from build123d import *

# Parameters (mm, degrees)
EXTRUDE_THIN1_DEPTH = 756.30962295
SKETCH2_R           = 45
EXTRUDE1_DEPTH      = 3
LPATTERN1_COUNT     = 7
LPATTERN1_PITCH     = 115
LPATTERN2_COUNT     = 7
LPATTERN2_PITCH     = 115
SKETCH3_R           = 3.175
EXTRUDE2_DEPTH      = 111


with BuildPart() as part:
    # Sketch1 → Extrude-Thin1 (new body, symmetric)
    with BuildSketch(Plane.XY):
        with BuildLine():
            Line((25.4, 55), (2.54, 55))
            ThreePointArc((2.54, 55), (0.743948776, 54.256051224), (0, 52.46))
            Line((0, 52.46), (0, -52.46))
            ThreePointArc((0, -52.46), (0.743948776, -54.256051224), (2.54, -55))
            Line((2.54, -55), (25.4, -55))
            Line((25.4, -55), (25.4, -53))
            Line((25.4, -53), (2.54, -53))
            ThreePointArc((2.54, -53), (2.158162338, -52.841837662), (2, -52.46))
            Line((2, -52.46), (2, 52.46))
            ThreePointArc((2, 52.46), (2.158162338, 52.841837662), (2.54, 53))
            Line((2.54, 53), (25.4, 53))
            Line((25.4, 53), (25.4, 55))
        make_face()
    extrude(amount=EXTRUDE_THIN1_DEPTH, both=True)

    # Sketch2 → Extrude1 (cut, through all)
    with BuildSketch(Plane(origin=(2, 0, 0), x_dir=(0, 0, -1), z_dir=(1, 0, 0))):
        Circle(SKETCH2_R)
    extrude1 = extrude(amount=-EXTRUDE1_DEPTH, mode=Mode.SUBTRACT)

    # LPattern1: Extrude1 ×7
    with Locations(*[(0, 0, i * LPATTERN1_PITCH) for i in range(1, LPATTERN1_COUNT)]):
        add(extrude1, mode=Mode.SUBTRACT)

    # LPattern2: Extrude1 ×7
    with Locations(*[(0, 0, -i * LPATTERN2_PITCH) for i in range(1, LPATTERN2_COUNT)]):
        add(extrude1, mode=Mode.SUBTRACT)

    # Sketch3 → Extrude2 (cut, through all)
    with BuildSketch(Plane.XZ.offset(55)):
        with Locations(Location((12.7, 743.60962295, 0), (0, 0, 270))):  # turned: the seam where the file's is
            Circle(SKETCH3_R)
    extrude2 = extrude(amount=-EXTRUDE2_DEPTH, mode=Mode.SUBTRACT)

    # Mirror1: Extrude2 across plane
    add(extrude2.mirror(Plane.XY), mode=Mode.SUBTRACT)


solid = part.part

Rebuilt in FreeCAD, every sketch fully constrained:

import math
import FreeCAD as App
import Part
import Sketcher

V = App.Vector
Q = App.Units.Quantity

doc = App.newDocument("Part")
body = doc.addObject("PartDesign::Body", "Body")

# Sketch on XY plane
sketch1 = body.newObject("Sketcher::SketchObject", "Sketch")
sketch1.AttachmentSupport = (doc.getObject("XY_Plane"), [""])
sketch1.MapMode = "FlatFace"
sketch1.addGeometry(Part.LineSegment(V(25.4, 55, 0), V(2.54, 55, 0)), False)
sketch1.addGeometry(Part.ArcOfCircle(Part.Circle(V(2.54, 52.46, 0), V(0, 0, 1), 2.54), math.radians(90), math.radians(180)), False)
sketch1.addGeometry(Part.LineSegment(V(0, 52.46, 0), V(0, -52.46, 0)), False)
sketch1.addGeometry(Part.ArcOfCircle(Part.Circle(V(2.54, -52.46, 0), V(0, 0, 1), 2.54), math.radians(-180), math.radians(-90)), False)
sketch1.addGeometry(Part.LineSegment(V(2.54, -55, 0), V(25.4, -55, 0)), False)
sketch1.addGeometry(Part.LineSegment(V(25.4, -55, 0), V(25.4, -53, 0)), False)
sketch1.addGeometry(Part.LineSegment(V(25.4, -53, 0), V(2.54, -53, 0)), False)
sketch1.addGeometry(Part.ArcOfCircle(Part.Circle(V(2.54, -52.46, 0), V(0, 0, 1), 0.54), math.radians(180), math.radians(270)), False)
sketch1.addGeometry(Part.LineSegment(V(2, -52.46, 0), V(2, 52.46, 0)), False)
sketch1.addGeometry(Part.ArcOfCircle(Part.Circle(V(2.54, 52.46, 0), V(0, 0, 1), 0.54), math.radians(90), math.radians(180)), False)
sketch1.addGeometry(Part.LineSegment(V(2.54, 53, 0), V(25.4, 53, 0)), False)
sketch1.addGeometry(Part.LineSegment(V(25.4, 53, 0), V(25.4, 55, 0)), False)
sketch1.addConstraint(Sketcher.Constraint("Tangent", 0, 2, 1, 1))
sketch1.addConstraint(Sketcher.Constraint("Tangent", 1, 2, 2, 1))
sketch1.addConstraint(Sketcher.Constraint("Tangent", 2, 2, 3, 1))
sketch1.addConstraint(Sketcher.Constraint("Tangent", 3, 2, 4, 1))
sketch1.addConstraint(Sketcher.Constraint("Coincident", 4, 2, 5, 1))
sketch1.addConstraint(Sketcher.Constraint("Coincident", 5, 2, 6, 1))
sketch1.addConstraint(Sketcher.Constraint("Tangent", 6, 2, 7, 2))
sketch1.addConstraint(Sketcher.Constraint("Tangent", 7, 1, 8, 1))
sketch1.addConstraint(Sketcher.Constraint("Tangent", 8, 2, 9, 2))
sketch1.addConstraint(Sketcher.Constraint("Tangent", 9, 1, 10, 1))
sketch1.addConstraint(Sketcher.Constraint("Coincident", 10, 2, 11, 1))
sketch1.addConstraint(Sketcher.Constraint("Coincident", 11, 2, 0, 1))
sketch1.addConstraint(Sketcher.Constraint("Horizontal", 0))
sketch1.addConstraint(Sketcher.Constraint("Vertical", 2))
sketch1.addConstraint(Sketcher.Constraint("Horizontal", 4))
sketch1.addConstraint(Sketcher.Constraint("Vertical", 5))
sketch1.addConstraint(Sketcher.Constraint("Horizontal", 6))
sketch1.addConstraint(Sketcher.Constraint("Vertical", 8))
sketch1.addConstraint(Sketcher.Constraint("Horizontal", 10))
sketch1.addConstraint(Sketcher.Constraint("Vertical", 11))
sketch1.addConstraint(Sketcher.Constraint("Coincident", 7, 3, 3, 3))
sketch1.addConstraint(Sketcher.Constraint("Coincident", 9, 3, 1, 3))
sketch1.addConstraint(Sketcher.Constraint("Equal", 1, 3))
sketch1.addConstraint(Sketcher.Constraint("Symmetric", 1, 2, 2, 2, -1, 1))
sketch1.addConstraint(Sketcher.Constraint("Vertical", 5, 2, 10, 2))
sketch1.addConstraint(Sketcher.Constraint("DistanceY", 5, 1, 5, 2, Q("2 mm")))
sketch1.addConstraint(Sketcher.Constraint("Radius", 1, Q("2.54 mm")))
sketch1.addConstraint(Sketcher.Constraint("DistanceY", -1, 1, 0, 2, Q("55 mm")))
sketch1.addConstraint(Sketcher.Constraint("DistanceX", 0, 2, 0, 1, Q("22.86 mm")))
pad1 = body.newObject("PartDesign::Pad", "Pad")
pad1.Profile = sketch1
pad1.Length = 1512.619246
pad1.Midplane = True

# Sketch on YZ plane
sketch2 = body.newObject("Sketcher::SketchObject", "Sketch001")
sketch2.AttachmentSupport = (doc.getObject("YZ_Plane"), [""])
sketch2.MapMode = "FlatFace"
sketch2.AttachmentOffset = App.Placement(V(0, 0, 2), App.Rotation())
sketch2.addGeometry(Part.Circle(V(0, 0, 0), V(0, 0, 1), 45), False)
sketch2.addConstraint(Sketcher.Constraint("Coincident", 0, 3, -1, 1))
sketch2.addConstraint(Sketcher.Constraint("Diameter", 0, Q("90 mm")))
pocket1 = body.newObject("PartDesign::Pocket", "Pocket")
pocket1.Profile = sketch2
pocket1.Type = "ThroughAll"
doc.recompute()

linearpattern = body.newObject("PartDesign::LinearPattern", "LinearPattern")
linearpattern.Originals = [pocket1]
linearpattern.Direction = (doc.getObject("Z_Axis"), [""])
linearpattern.Mode = "offset"
linearpattern.Offset = 115
linearpattern.Occurrences = 7
body.Tip = linearpattern
doc.recompute()

linearpattern2 = body.newObject("PartDesign::LinearPattern", "LinearPattern001")
linearpattern2.Originals = [pocket1]
linearpattern2.Direction = (doc.getObject("Z_Axis"), [""])
linearpattern2.Mode = "offset"
linearpattern2.Offset = 115
linearpattern2.Occurrences = 7
linearpattern2.Reversed = True
body.Tip = linearpattern2

# Sketch on XZ plane
sketch3 = body.newObject("Sketcher::SketchObject", "Sketch002")
sketch3.AttachmentSupport = (doc.getObject("XZ_Plane"), [""])
sketch3.MapMode = "FlatFace"
sketch3.AttachmentOffset = App.Placement(V(0, 0, 55), App.Rotation())
sketch3.addGeometry(Part.Circle(V(12.7, 743.609623, 0), V(0, 0, 1), 3.175), False)
sketch3.addConstraint(Sketcher.Constraint("Diameter", 0, Q("6.35 mm")))
sketch3.addConstraint(Sketcher.Constraint("DistanceX", -1, 1, 0, 3, Q("12.7 mm")))
sketch3.addConstraint(Sketcher.Constraint("DistanceY", -1, 1, 0, 3, Q("743.609623 mm")))
pocket2 = body.newObject("PartDesign::Pocket", "Pocket001")
pocket2.Profile = sketch3
pocket2.Type = "ThroughAll"
doc.recompute()

mirrored = body.newObject("PartDesign::Mirrored", "Mirrored")
mirrored.Originals = [pocket2]
mirrored.MirrorPlane = (doc.getObject("XY_Plane"), [""])
body.Tip = mirrored

doc.recompute()
